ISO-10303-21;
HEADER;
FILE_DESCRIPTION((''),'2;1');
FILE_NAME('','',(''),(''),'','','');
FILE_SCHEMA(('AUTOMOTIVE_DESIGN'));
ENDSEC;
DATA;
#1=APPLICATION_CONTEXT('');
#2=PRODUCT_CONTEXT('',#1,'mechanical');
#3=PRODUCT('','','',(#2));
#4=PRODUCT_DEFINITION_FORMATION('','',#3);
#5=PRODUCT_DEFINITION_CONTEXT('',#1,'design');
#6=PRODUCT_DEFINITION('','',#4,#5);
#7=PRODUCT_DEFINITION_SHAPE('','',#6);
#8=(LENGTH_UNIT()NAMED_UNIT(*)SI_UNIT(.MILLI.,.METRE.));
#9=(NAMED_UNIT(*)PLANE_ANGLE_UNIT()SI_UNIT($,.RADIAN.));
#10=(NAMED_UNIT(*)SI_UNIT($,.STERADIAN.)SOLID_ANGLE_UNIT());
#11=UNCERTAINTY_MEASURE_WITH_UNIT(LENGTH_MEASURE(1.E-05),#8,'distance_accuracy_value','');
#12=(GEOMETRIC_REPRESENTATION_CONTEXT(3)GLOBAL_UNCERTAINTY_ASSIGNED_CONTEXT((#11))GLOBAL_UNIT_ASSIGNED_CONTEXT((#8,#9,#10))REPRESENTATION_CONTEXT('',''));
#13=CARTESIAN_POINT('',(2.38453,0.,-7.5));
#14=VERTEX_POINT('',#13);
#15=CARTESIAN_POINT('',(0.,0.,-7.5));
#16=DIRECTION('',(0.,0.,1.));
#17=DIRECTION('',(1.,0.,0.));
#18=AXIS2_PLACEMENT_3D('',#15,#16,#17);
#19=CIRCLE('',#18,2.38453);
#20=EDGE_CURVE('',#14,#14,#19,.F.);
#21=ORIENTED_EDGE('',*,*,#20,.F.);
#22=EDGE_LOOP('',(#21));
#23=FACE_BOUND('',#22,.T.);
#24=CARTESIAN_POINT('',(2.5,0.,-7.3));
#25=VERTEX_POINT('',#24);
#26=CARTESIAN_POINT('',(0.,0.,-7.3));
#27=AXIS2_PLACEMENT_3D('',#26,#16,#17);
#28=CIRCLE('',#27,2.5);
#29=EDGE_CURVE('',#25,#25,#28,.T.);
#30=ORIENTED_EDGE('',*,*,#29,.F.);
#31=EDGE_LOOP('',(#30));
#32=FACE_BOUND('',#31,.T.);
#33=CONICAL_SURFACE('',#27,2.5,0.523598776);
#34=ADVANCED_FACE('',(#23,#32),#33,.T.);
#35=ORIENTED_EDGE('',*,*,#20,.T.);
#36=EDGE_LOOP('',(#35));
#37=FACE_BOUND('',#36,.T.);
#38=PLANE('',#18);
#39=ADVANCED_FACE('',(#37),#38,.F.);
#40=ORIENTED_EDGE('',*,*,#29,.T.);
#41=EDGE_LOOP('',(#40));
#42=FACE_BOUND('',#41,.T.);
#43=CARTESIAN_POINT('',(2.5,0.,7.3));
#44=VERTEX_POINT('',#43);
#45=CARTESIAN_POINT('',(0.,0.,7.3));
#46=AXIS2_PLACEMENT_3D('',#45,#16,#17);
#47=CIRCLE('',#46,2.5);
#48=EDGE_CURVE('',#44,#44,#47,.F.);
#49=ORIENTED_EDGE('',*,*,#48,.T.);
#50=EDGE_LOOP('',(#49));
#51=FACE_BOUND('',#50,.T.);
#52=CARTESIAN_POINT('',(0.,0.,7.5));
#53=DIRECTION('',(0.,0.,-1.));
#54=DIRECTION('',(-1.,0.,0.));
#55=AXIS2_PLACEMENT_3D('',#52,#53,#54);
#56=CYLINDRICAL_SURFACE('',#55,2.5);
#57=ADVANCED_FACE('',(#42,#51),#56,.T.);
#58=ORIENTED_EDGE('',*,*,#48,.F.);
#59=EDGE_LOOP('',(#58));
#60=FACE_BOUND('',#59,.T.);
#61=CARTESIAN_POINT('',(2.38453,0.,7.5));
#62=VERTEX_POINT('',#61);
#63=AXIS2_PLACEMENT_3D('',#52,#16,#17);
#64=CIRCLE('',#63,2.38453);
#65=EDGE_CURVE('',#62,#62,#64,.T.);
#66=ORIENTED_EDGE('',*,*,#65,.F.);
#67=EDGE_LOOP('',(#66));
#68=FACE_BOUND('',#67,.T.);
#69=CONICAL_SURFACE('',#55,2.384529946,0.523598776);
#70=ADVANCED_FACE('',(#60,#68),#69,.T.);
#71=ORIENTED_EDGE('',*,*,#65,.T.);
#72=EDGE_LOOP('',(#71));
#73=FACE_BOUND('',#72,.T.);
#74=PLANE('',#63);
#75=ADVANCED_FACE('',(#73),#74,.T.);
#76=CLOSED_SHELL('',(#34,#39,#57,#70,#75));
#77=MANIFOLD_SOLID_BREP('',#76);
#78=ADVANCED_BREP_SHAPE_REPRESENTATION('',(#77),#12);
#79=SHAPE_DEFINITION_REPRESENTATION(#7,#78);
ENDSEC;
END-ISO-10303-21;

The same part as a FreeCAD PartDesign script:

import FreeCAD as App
import Part
import Sketcher
from FreeCAD import Vector
Q = App.Units.Quantity


def edges_at(feature, points):
    """Names of the edges that pass closest to the given points."""
    edges = feature.Shape.Edges
    near = lambda p: min(range(len(edges)), key=lambda i: edges[i].distToShape(Part.Vertex(*p))[0])
    return sorted({f"Edge{near(p) + 1}" for p in points})

doc = App.newDocument("Part")
body = doc.addObject("PartDesign::Body", "Body")

# Sketch on XY plane
sketch1 = body.newObject("Sketcher::SketchObject", "Sketch")
sketch1.AttachmentSupport = (doc.getObject("XY_Plane"), [""])
sketch1.MapMode = "FlatFace"
sketch1.addGeometry(Part.Circle(Vector(0, 0, 0), Vector(0, 0, 1), 2.5), False)
sketch1.addConstraint([
    Sketcher.Constraint("Coincident", 0, 3, -1, 1),
    Sketcher.Constraint("Diameter", 0, Q("5 mm")),
])
pad1 = body.newObject("PartDesign::Pad", "Pad")
pad1.Profile = sketch1
pad1.Length = 15
pad1.Midplane = True
doc.recompute()

chamfer = body.newObject("PartDesign::Chamfer", "Chamfer")
chamfer.Base = (pad1, edges_at(pad1, [(-2.5, 0, -7.5), (-2.5, 0, 7.5)]))
chamfer.ChamferType = "Two distances"
chamfer.Size = 0.2
chamfer.Size2 = 0.11547

doc.recompute()
